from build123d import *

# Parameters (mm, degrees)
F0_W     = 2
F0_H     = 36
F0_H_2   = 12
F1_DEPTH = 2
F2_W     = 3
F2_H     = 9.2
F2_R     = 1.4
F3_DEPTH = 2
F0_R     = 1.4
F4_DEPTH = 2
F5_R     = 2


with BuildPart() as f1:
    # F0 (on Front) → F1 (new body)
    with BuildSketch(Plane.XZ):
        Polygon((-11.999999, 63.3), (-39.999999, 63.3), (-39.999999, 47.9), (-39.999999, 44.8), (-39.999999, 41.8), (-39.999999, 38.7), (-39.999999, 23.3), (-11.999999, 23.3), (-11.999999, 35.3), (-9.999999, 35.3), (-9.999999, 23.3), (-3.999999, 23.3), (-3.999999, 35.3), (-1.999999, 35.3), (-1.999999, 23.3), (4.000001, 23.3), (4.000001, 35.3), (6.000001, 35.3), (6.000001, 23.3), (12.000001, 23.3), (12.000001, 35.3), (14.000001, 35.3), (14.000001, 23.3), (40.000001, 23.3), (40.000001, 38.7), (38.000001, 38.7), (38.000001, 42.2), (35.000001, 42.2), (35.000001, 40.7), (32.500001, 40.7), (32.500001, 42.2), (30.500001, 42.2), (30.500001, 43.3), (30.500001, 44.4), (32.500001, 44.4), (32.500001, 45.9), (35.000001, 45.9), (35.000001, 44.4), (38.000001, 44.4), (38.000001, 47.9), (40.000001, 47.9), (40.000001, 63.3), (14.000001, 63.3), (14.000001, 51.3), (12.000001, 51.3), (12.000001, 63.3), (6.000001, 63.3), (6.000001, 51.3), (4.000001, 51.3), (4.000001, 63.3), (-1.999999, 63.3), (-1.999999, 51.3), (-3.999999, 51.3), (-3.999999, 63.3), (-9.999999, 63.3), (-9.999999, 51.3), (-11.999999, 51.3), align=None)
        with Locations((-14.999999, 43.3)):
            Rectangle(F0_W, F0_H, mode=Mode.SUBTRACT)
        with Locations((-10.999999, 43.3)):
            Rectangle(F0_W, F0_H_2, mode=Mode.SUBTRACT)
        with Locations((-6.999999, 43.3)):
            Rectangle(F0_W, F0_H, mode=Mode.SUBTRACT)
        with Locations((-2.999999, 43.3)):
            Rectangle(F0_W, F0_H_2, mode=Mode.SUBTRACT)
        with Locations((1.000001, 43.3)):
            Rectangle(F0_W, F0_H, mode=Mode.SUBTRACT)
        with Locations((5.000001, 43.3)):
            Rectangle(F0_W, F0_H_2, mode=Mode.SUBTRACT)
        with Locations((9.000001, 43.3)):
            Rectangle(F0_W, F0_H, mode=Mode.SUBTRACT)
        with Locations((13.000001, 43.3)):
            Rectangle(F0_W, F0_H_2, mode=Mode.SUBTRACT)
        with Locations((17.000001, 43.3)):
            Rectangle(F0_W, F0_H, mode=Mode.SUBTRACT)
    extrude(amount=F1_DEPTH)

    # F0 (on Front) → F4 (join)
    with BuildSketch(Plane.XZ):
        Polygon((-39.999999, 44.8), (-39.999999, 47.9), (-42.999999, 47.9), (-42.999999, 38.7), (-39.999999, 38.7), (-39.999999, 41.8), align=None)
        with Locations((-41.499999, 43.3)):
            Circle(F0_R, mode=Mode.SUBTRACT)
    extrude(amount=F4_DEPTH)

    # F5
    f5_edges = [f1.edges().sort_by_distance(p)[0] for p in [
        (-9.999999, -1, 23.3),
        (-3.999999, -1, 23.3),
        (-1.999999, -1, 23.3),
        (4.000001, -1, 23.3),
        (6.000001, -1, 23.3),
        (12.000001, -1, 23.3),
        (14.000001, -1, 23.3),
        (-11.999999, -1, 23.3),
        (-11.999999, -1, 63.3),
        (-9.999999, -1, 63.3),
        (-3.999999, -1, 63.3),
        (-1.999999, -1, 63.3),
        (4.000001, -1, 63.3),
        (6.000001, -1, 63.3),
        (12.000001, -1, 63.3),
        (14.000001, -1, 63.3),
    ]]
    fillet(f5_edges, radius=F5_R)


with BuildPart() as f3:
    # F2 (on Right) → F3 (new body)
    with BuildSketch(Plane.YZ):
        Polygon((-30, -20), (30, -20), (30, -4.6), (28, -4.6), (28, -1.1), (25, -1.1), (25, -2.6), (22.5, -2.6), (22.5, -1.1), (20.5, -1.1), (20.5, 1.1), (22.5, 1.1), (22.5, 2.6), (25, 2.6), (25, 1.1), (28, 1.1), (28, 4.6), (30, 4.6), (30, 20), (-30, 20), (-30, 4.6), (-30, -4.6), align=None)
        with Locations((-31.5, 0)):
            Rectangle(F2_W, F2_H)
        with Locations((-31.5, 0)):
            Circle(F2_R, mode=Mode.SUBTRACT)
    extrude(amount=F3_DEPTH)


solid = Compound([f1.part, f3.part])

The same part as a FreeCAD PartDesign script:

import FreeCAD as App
import Part
import Sketcher

V = App.Vector
Q = App.Units.Quantity


def edges_at(feature, points):
    """Names of the edges that pass closest to the given points."""
    edges = feature.Shape.Edges
    near = lambda p: min(range(len(edges)), key=lambda i: edges[i].distToShape(Part.Vertex(*p))[0])
    return sorted({f"Edge{near(p) + 1}" for p in points})


def add_polygon(sketch, points):
    """Adds a closed chain of lines whose ends are joined by coincident constraints."""
    first, n = sketch.GeometryCount, len(points)
    for a, b in zip(points, points[1:] + points[:1]):
        sketch.addGeometry(Part.LineSegment(App.Vector(*a, 0), App.Vector(*b, 0)), False)
    for i in range(n):
        sketch.addConstraint(Sketcher.Constraint("Coincident", first + i, 2, first + (i + 1) % n, 1))

doc = App.newDocument("Part")
params = doc.addObject("Spreadsheet::Sheet", "Params")
for row, (alias, value) in enumerate([
    ("sketch1_width", "28 mm"),
    ("sketch1_width2", "2 mm"),
    ("sketch1_width3", "6 mm"),
    ("sketch1_width4", "3 mm"),
    ("sketch1_height", "40 mm"),
    ("pad1_length", "2 mm"),
    ("sketch2_diameter", "2.8 mm"),
    ("sketch2_width", "3 mm"),
    ("sketch2_height", "9.2 mm"),
    ("pad2_length", "2 mm"),
    ("fillet_radius", "2 mm"),
    ("sketch3_diameter", "2.8 mm"),
    ("sketch3_width", "60 mm"),
    ("sketch3_width2", "2 mm"),
    ("sketch3_width3", "3 mm"),
    ("sketch3_width4", "2.5 mm"),
    ("pad3_length", "2 mm"),
], start=1):
    params.set(f"A{row}", alias)
    params.set(f"B{row}", "=" + value)
    params.setAlias(f"B{row}", alias)

body = doc.addObject("PartDesign::Body", "Body")

# Sketch on XZ plane
sketch1 = doc.addObject("Sketcher::SketchObject", "Sketch")
body.addObject(sketch1)
sketch1.AttachmentSupport = (doc.XZ_Plane, [""])
sketch1.MapMode = "FlatFace"
add_polygon(sketch1, [(-12, 63.3), (-40, 63.3), (-40, 23.3), (-12, 23.3), (-12, 35.3), (-10, 35.3), (-10, 23.3), (-4, 23.3), (-4, 35.3), (-2, 35.3), (-2, 23.3), (4, 23.3), (4, 35.3), (6, 35.3), (6, 23.3), (12, 23.3), (12, 35.3), (14, 35.3), (14, 23.3), (40, 23.3), (40, 38.7), (38, 38.7), (38, 42.2), (35, 42.2), (35, 40.7), (32.5, 40.7), (32.5, 42.2), (30.5, 42.2), (30.5, 44.4), (32.5, 44.4), (32.5, 45.9), (35, 45.9), (35, 44.4), (38, 44.4), (38, 47.9), (40, 47.9), (40, 63.3), (14, 63.3), (14, 51.3), (12, 51.3), (12, 63.3), (6, 63.3), (6, 51.3), (4, 51.3), (4, 63.3), (-2, 63.3), (-2, 51.3), (-4, 51.3), (-4, 63.3), (-10, 63.3), (-10, 51.3), (-12, 51.3)])  # lines 0-51
add_polygon(sketch1, [(-14, 25.3), (-16, 25.3), (-16, 61.3), (-14, 61.3)])  # lines 52-55
add_polygon(sketch1, [(-10, 37.3), (-12, 37.3), (-12, 49.3), (-10, 49.3)])  # lines 56-59
add_polygon(sketch1, [(-6, 25.3), (-8, 25.3), (-8, 61.3), (-6, 61.3)])  # lines 60-63
add_polygon(sketch1, [(-2, 37.3), (-4, 37.3), (-4, 49.3), (-2, 49.3)])  # lines 64-67
add_polygon(sketch1, [(2, 25.3), (0, 25.3), (0, 61.3), (2, 61.3)])  # lines 68-71
add_polygon(sketch1, [(6, 37.3), (4, 37.3), (4, 49.3), (6, 49.3)])  # lines 72-75
add_polygon(sketch1, [(10, 25.3), (8, 25.3), (8, 61.3), (10, 61.3)])  # lines 76-79
add_polygon(sketch1, [(14, 37.3), (12, 37.3), (12, 49.3), (14, 49.3)])  # lines 80-83
add_polygon(sketch1, [(18, 25.3), (16, 25.3), (16, 61.3), (18, 61.3)])  # lines 84-87
sketch1.addConstraint([
    Sketcher.Constraint("Horizontal", 0),
    Sketcher.Constraint("Vertical", 1),
    Sketcher.Constraint("Horizontal", 2),
    Sketcher.Constraint("Vertical", 3),
    Sketcher.Constraint("Horizontal", 4),
    Sketcher.Constraint("Vertical", 5),
    Sketcher.Constraint("Horizontal", 6),
    Sketcher.Constraint("Vertical", 7),
    Sketcher.Constraint("Horizontal", 8),
    Sketcher.Constraint("Vertical", 9),
    Sketcher.Constraint("Horizontal", 10),
    Sketcher.Constraint("Vertical", 11),
    Sketcher.Constraint("Horizontal", 12),
    Sketcher.Constraint("Vertical", 13),
    Sketcher.Constraint("Horizontal", 14),
    Sketcher.Constraint("Vertical", 15),
    Sketcher.Constraint("Horizontal", 16),
    Sketcher.Constraint("Vertical", 17),
    Sketcher.Constraint("Horizontal", 18),
    Sketcher.Constraint("Vertical", 19),
    Sketcher.Constraint("Horizontal", 20),
    Sketcher.Constraint("Vertical", 21),
    Sketcher.Constraint("Horizontal", 22),
    Sketcher.Constraint("Vertical", 23),
    Sketcher.Constraint("Horizontal", 24),
    Sketcher.Constraint("Vertical", 25),
    Sketcher.Constraint("Horizontal", 26),
    Sketcher.Constraint("Vertical", 27),
    Sketcher.Constraint("Horizontal", 28),
    Sketcher.Constraint("Vertical", 29),
    Sketcher.Constraint("Horizontal", 30),
    Sketcher.Constraint("Vertical", 31),
    Sketcher.Constraint("Horizontal", 32),
    Sketcher.Constraint("Vertical", 33),
    Sketcher.Constraint("Horizontal", 34),
    Sketcher.Constraint("Vertical", 35),
    Sketcher.Constraint("Horizontal", 36),
    Sketcher.Constraint("Vertical", 37),
    Sketcher.Constraint("Horizontal", 38),
    Sketcher.Constraint("Vertical", 39),
    Sketcher.Constraint("Horizontal", 40),
    Sketcher.Constraint("Vertical", 41),
    Sketcher.Constraint("Horizontal", 42),
    Sketcher.Constraint("Vertical", 43),
    Sketcher.Constraint("Horizontal", 44),
    Sketcher.Constraint("Vertical", 45),
    Sketcher.Constraint("Horizontal", 46),
    Sketcher.Constraint("Vertical", 47),
    Sketcher.Constraint("Horizontal", 48),
    Sketcher.Constraint("Vertical", 49),
    Sketcher.Constraint("Horizontal", 50),
    Sketcher.Constraint("Vertical", 51),
    Sketcher.Constraint("Horizontal", 52),
    Sketcher.Constraint("Vertical", 53),
    Sketcher.Constraint("Horizontal", 54),
    Sketcher.Constraint("Vertical", 55),
    Sketcher.Constraint("Horizontal", 56),
    Sketcher.Constraint("Vertical", 57),
    Sketcher.Constraint("Horizontal", 58),
    Sketcher.Constraint("Vertical", 59),
    Sketcher.Constraint("Horizontal", 60),
    Sketcher.Constraint("Vertical", 61),
    Sketcher.Constraint("Horizontal", 62),
    Sketcher.Constraint("Vertical", 63),
    Sketcher.Constraint("Horizontal", 64),
    Sketcher.Constraint("Vertical", 65),
    Sketcher.Constraint("Horizontal", 66),
    Sketcher.Constraint("Vertical", 67),
    Sketcher.Constraint("Horizontal", 68),
    Sketcher.Constraint("Vertical", 69),
    Sketcher.Constraint("Horizontal", 70),
    Sketcher.Constraint("Vertical", 71),
    Sketcher.Constraint("Horizontal", 72),
    Sketcher.Constraint("Vertical", 73),
    Sketcher.Constraint("Horizontal", 74),
    Sketcher.Constraint("Vertical", 75),
    Sketcher.Constraint("Horizontal", 76),
    Sketcher.Constraint("Vertical", 77),
    Sketcher.Constraint("Horizontal", 78),
    Sketcher.Constraint("Vertical", 79),
    Sketcher.Constraint("Horizontal", 80),
    Sketcher.Constraint("Vertical", 81),
    Sketcher.Constraint("Horizontal", 82),
    Sketcher.Constraint("Vertical", 83),
    Sketcher.Constraint("Horizontal", 84),
    Sketcher.Constraint("Vertical", 85),
    Sketcher.Constraint("Horizontal", 86),
    Sketcher.Constraint("Vertical", 87),
    Sketcher.Constraint("Symmetric", 6, 2, 10, 2, -2),
    Sketcher.Constraint("Symmetric", 2, 2, 14, 2, -2),
    Sketcher.Constraint("Symmetric", 1, 2, 18, 2, -2),
    Sketcher.Constraint("Symmetric", 0, 2, 35, 2, -2),
    Sketcher.Constraint("Symmetric", 42, 2, 46, 2, -2),
    Sketcher.Constraint("Symmetric", 38, 2, 50, 2, -2),
    Sketcher.Constraint("Symmetric", 64, 2, 72, 2, -2),
    Sketcher.Constraint("Symmetric", 60, 2, 76, 2, -2),
    Sketcher.Constraint("Symmetric", 56, 2, 80, 2, -2),
    Sketcher.Constraint("Symmetric", 52, 2, 84, 2, -2),
    Sketcher.Constraint("PointOnObject", 68, 2, -2),
    Sketcher.Constraint("Horizontal", 2, 2, 5, 2),
    Sketcher.Constraint("Horizontal", 4, 2, 7, 2),
    Sketcher.Constraint("Horizontal", 8, 2, 11, 2),
    Sketcher.Constraint("Horizontal", 12, 2, 15, 2),
    Sketcher.Constraint("Horizontal", 22, 2, 25, 2),
    Sketcher.Constraint("Horizontal", 28, 2, 31, 2),
    Sketcher.Constraint("Horizontal", 36, 2, 39, 2),
    Sketcher.Constraint("Horizontal", 38, 2, 41, 2),
    Sketcher.Constraint("Horizontal", 40, 2, 43, 2),
    Sketcher.Constraint("Horizontal", 44, 2, 47, 2),
    Sketcher.Constraint("Horizontal", 55, 2, 60, 2),
    Sketcher.Constraint("Horizontal", 54, 2, 61, 2),
    Sketcher.Constraint("Horizontal", 59, 2, 64, 2),
    Sketcher.Constraint("Horizontal", 58, 2, 65, 2),
    Sketcher.Constraint("Horizontal", 63, 2, 68, 2),
    Sketcher.Constraint("Horizontal", 62, 2, 69, 2),
    Sketcher.Constraint("Horizontal", 66, 2, 73, 2),
    Sketcher.Constraint("Horizontal", 70, 2, 77, 2),
    Sketcher.Constraint("Horizontal", 74, 2, 81, 2),
    Sketcher.Constraint("Horizontal", 78, 2, 85, 2),
    Sketcher.Constraint("Vertical", 25, 2, 28, 2),
    Sketcher.Constraint("Vertical", 23, 2, 30, 2),
    Sketcher.Constraint("Vertical", 21, 2, 32, 2),
    Sketcher.Constraint("Vertical", 17, 2, 36, 2),
    Sketcher.Constraint("Vertical", 15, 2, 38, 2),
    Sketcher.Constraint("Vertical", 13, 2, 40, 2),
    Sketcher.Constraint("Vertical", 11, 2, 42, 2),
    Sketcher.Constraint("Vertical", 9, 2, 44, 2),
    Sketcher.Constraint("Vertical", 5, 2, 48, 2),
    Sketcher.Constraint("Vertical", 51, 2, 56, 2),
    Sketcher.Constraint("Vertical", 49, 2, 58, 2),
    Sketcher.Constraint("Vertical", 47, 2, 64, 2),
    Sketcher.Constraint("Vertical", 45, 2, 66, 2),
    Sketcher.Constraint("Vertical", 41, 2, 74, 2),
    Sketcher.Constraint("Vertical", 37, 2, 82, 2),
    Sketcher.Constraint("Equal", 4, 8),
    Sketcher.Constraint("Equal", 6, 10),
    Sketcher.Constraint("Equal", 8, 12),
    Sketcher.Constraint("Equal", 12, 16),
    Sketcher.Constraint("Equal", 16, 20),
    Sketcher.Constraint("Equal", 20, 26),
    Sketcher.Constraint("Equal", 50, 52),
    Sketcher.Constraint("Equal", 58, 60),
    Sketcher.Constraint("Equal", 66, 68),
    Sketcher.Constraint("Equal", 74, 76),
    Sketcher.Constraint("Equal", 82, 84),
    Sketcher.Constraint("Equal", 25, 29),
    Sketcher.Constraint("Equal", 21, 33),
    Sketcher.Constraint("Equal", 19, 35),
    Sketcher.Constraint("Equal", 17, 37),
    Sketcher.Constraint("Equal", 51, 57),
    Sketcher.Constraint("DistanceX", 0, 2, 0, 1, Q("28 mm")),
    Sketcher.Constraint("DistanceX", 4, 1, 4, 2, Q("2 mm")),
    Sketcher.Constraint("DistanceX", 6, 1, 6, 2, Q("6 mm")),
    Sketcher.Constraint("DistanceX", 22, 2, 22, 1, Q("3 mm")),
    Sketcher.Constraint("DistanceY", 1, 2, 1, 1, Q("40 mm")),
    Sketcher.Constraint("DistanceY", 3, 1, 3, 2, Q("12 mm")),
    Sketcher.Constraint("DistanceY", 53, 1, 53, 2, Q("36 mm")),
    Sketcher.Constraint("DistanceX", 24, 2, 24, 1, Q("2.5 mm")),
    Sketcher.Constraint("DistanceY", 19, 1, 19, 2, Q("15.4 mm")),
    Sketcher.Constraint("DistanceY", 21, 1, 21, 2, Q("3.5 mm")),
    Sketcher.Constraint("DistanceY", 23, 2, 23, 1, Q("1.5 mm")),
    Sketcher.Constraint("DistanceX", 52, 2, -1, 1, Q("15.999999 mm")),
    Sketcher.Constraint("DistanceX", 60, 2, -1, 1, Q("7.999999 mm")),
    Sketcher.Constraint("DistanceY", -1, 1, 0, 2, Q("63.3 mm")),
    Sketcher.Constraint("DistanceY", -1, 1, 52, 2, Q("25.3 mm")),
    Sketcher.Constraint("DistanceY", -1, 1, 56, 2, Q("37.3 mm")),
])
sketch1.setExpression("Constraints[238]", "Params.sketch1_width")
sketch1.setExpression("Constraints[239]", "Params.sketch1_width2")
sketch1.setExpression("Constraints[240]", "Params.sketch1_width3")
sketch1.setExpression("Constraints[241]", "Params.sketch1_width4")
sketch1.setExpression("Constraints[242]", "Params.sketch1_height")
pad1 = doc.addObject("PartDesign::Pad", "Pad")
body.addObject(pad1)
pad1.Profile = sketch1
pad1.setExpression("Length", "Params.pad1_length")

# Sketch on XZ plane
sketch2 = doc.addObject("Sketcher::SketchObject", "Sketch001")
body.addObject(sketch2)
sketch2.AttachmentSupport = (doc.XZ_Plane, [""])
sketch2.MapMode = "FlatFace"
add_polygon(sketch2, [(-40, 47.9), (-43, 47.9), (-43, 38.7), (-40, 38.7)])  # lines 0-3
sketch2.addGeometry(Part.Circle(V(-41.5, 43.3, 0), V(0, 0, 1), 1.4), False)  # 4
sketch2.addConstraint([
    Sketcher.Constraint("Horizontal", 0),
    Sketcher.Constraint("Vertical", 1),
    Sketcher.Constraint("Horizontal", 2),
    Sketcher.Constraint("Vertical", 3),
    Sketcher.Constraint("Diameter", 4, Q("2.8 mm")),
    Sketcher.Constraint("DistanceX", 0, 2, 0, 1, Q("3 mm")),
    Sketcher.Constraint("DistanceY", 1, 2, 1, 1, Q("9.2 mm")),
    Sketcher.Constraint("DistanceX", 0, 2, -1, 1, Q("42.999999 mm")),
    Sketcher.Constraint("DistanceX", 4, 3, -1, 1, Q("41.499999 mm")),
    Sketcher.Constraint("DistanceY", -1, 1, 4, 3, Q("43.3 mm")),
    Sketcher.Constraint("DistanceY", -1, 1, 0, 2, Q("47.9 mm")),
])
sketch2.setExpression("Constraints[8]", "Params.sketch2_diameter")
sketch2.setExpression("Constraints[9]", "Params.sketch2_width")
sketch2.setExpression("Constraints[10]", "Params.sketch2_height")
pad2 = doc.addObject("PartDesign::Pad", "Pad001")
body.addObject(pad2)
pad2.Profile = sketch2
pad2.setExpression("Length", "Params.pad2_length")
doc.recompute()

fillet = doc.addObject("PartDesign::Fillet", "Fillet")
body.addObject(fillet)
fillet.Base = (pad2, edges_at(pad2, [
    (-10, -1, 23.3),
    (-4, -1, 23.3),
    (-2, -1, 23.3),
    (4, -1, 23.3),
    (6, -1, 23.3),
    (12, -1, 23.3),
    (14, -1, 23.3),
    (-12, -1, 23.3),
    (-12, -1, 63.3),
    (-10, -1, 63.3),
    (-4, -1, 63.3),
    (-2, -1, 63.3),
    (4, -1, 63.3),
    (6, -1, 63.3),
    (12, -1, 63.3),
    (14, -1, 63.3),
]))
fillet.setExpression("Radius", "Params.fillet_radius")
body2 = doc.addObject("PartDesign::Body", "Body001")

# Sketch on YZ plane
sketch3 = doc.addObject("Sketcher::SketchObject", "Sketch002")
body2.addObject(sketch3)
sketch3.AttachmentSupport = (doc.getObject("YZ_Plane001"), [""])
sketch3.MapMode = "FlatFace"
add_polygon(sketch3, [(-30, -4.6), (-30, -20), (30, -20), (30, -4.6), (28, -4.6), (28, -1.1), (25, -1.1), (25, -2.6), (22.5, -2.6), (22.5, -1.1), (20.5, -1.1), (20.5, 1.1), (22.5, 1.1), (22.5, 2.6), (25, 2.6), (25, 1.1), (28, 1.1), (28, 4.6), (30, 4.6), (30, 20), (-30, 20), (-30, 4.6), (-33, 4.6), (-33, -4.6)])  # lines 0-23
sketch3.addGeometry(Part.Circle(V(-31.5, 0, 0), V(0, 0, 1), 1.4), False)  # 24
sketch3.addConstraint([
    Sketcher.Constraint("Vertical", 0),
    Sketcher.Constraint("Horizontal", 1),
    Sketcher.Constraint("Vertical", 2),
    Sketcher.Constraint("Horizontal", 3),
    Sketcher.Constraint("Vertical", 4),
    Sketcher.Constraint("Horizontal", 5),
    Sketcher.Constraint("Vertical", 6),
    Sketcher.Constraint("Horizontal", 7),
    Sketcher.Constraint("Vertical", 8),
    Sketcher.Constraint("Horizontal", 9),
    Sketcher.Constraint("Vertical", 10),
    Sketcher.Constraint("Horizontal", 11),
    Sketcher.Constraint("Vertical", 12),
    Sketcher.Constraint("Horizontal", 13),
    Sketcher.Constraint("Vertical", 14),
    Sketcher.Constraint("Horizontal", 15),
    Sketcher.Constraint("Vertical", 16),
    Sketcher.Constraint("Horizontal", 17),
    Sketcher.Constraint("Vertical", 18),
    Sketcher.Constraint("Horizontal", 19),
    Sketcher.Constraint("Vertical", 20),
    Sketcher.Constraint("Horizontal", 21),
    Sketcher.Constraint("Vertical", 22),
    Sketcher.Constraint("Horizontal", 23),
    Sketcher.Constraint("Symmetric", 0, 2, 18, 2, -1, 1),
    Sketcher.Constraint("Symmetric", 2, 2, 20, 2, -1, 1),
    Sketcher.Constraint("Symmetric", 17, 2, 20, 2, -2),
    Sketcher.Constraint("Symmetric", 8, 2, 11, 2, -1),
    Sketcher.Constraint("Symmetric", 6, 2, 13, 2, -1),
    Sketcher.Constraint("Symmetric", 4, 2, 15, 2, -1),
    Sketcher.Constraint("PointOnObject", 24, 3, -1),
    Sketcher.Constraint("Horizontal", 5, 2, 8, 2),
    Sketcher.Constraint("Horizontal", 3, 2, 22, 2),
    Sketcher.Constraint("Equal", 3, 9),
    Sketcher.Constraint("Equal", 15, 21),
    Sketcher.Constraint("Diameter", 24, Q("2.8 mm")),
    Sketcher.Constraint("DistanceX", 1, 1, 1, 2, Q("60 mm")),
    Sketcher.Constraint("DistanceX", 3, 2, 3, 1, Q("2 mm")),
    Sketcher.Constraint("DistanceX", 5, 2, 5, 1, Q("3 mm")),
    Sketcher.Constraint("DistanceX", 7, 2, 7, 1, Q("2.5 mm")),
    Sketcher.Constraint("DistanceY", 0, 2, 0, 1, Q("15.4 mm")),
    Sketcher.Constraint("DistanceY", 4, 1, 4, 2, Q("3.5 mm")),
    Sketcher.Constraint("DistanceY", 6, 2, 6, 1, Q("1.5 mm")),
    Sketcher.Constraint("DistanceY", 10, 1, 10, 2, Q("2.2 mm")),
    Sketcher.Constraint("DistanceX", 24, 3, -1, 1, Q("31.5 mm")),
])
sketch3.setExpression("Constraints[59]", "Params.sketch3_diameter")
sketch3.setExpression("Constraints[60]", "Params.sketch3_width")
sketch3.setExpression("Constraints[61]", "Params.sketch3_width2")
sketch3.setExpression("Constraints[62]", "Params.sketch3_width3")
sketch3.setExpression("Constraints[63]", "Params.sketch3_width4")
pad3 = doc.addObject("PartDesign::Pad", "Pad002")
body2.addObject(pad3)
pad3.Profile = sketch3
pad3.setExpression("Length", "Params.pad3_length")

doc.recompute()
